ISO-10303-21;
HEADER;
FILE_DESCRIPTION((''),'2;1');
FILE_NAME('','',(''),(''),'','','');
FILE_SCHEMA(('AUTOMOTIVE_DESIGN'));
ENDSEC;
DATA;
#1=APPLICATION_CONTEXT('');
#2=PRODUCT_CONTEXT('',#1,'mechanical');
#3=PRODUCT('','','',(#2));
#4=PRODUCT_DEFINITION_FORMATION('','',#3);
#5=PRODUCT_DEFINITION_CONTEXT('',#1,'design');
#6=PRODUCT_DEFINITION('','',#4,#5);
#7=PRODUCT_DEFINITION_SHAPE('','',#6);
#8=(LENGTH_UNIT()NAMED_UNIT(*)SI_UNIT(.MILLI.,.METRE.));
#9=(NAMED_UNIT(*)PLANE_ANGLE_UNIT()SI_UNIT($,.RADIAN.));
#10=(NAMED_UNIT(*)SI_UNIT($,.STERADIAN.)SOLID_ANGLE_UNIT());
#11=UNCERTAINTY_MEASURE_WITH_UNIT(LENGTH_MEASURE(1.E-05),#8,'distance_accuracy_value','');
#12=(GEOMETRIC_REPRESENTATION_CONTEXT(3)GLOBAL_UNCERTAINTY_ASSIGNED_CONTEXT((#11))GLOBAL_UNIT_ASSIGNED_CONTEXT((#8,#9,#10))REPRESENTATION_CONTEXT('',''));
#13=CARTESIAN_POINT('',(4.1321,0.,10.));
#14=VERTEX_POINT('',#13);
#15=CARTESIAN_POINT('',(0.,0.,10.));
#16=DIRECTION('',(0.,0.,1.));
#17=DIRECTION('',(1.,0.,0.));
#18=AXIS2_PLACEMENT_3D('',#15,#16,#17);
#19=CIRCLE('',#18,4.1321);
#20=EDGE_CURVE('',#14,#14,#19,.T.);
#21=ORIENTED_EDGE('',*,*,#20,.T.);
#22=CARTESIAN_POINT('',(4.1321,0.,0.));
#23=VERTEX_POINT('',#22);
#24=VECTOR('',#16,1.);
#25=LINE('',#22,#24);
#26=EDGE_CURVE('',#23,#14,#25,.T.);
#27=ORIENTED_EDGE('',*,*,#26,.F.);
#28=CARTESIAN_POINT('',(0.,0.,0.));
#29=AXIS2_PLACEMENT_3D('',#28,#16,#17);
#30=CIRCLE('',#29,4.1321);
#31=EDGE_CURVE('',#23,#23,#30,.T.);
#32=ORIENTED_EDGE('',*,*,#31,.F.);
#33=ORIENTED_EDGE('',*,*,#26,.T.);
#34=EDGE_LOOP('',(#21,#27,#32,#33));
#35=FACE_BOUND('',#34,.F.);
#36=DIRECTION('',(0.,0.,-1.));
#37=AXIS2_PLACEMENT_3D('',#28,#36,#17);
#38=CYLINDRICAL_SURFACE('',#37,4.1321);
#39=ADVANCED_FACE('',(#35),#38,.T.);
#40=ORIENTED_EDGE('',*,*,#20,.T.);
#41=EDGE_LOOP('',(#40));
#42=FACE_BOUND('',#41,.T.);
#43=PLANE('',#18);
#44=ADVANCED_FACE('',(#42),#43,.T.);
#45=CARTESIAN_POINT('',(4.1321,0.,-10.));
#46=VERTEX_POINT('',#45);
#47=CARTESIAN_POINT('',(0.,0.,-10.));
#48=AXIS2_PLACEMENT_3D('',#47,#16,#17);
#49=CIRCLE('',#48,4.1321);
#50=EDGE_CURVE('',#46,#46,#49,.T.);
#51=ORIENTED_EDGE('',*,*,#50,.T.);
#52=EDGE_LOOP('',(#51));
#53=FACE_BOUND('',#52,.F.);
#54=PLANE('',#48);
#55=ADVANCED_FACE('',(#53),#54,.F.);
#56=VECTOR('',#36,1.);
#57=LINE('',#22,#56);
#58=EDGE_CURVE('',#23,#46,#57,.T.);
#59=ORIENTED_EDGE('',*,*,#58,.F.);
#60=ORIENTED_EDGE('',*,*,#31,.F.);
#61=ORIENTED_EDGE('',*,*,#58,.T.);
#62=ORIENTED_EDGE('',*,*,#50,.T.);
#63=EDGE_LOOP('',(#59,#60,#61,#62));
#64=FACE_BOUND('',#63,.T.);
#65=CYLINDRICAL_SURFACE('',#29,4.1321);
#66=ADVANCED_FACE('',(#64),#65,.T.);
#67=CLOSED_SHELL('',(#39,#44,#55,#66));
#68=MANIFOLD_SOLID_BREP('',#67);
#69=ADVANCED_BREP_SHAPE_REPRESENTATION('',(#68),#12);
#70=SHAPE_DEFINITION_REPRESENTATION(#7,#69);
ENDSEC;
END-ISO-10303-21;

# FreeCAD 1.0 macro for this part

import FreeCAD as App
import Part
import Sketcher

doc = App.newDocument("Part")
body = doc.addObject("PartDesign::Body", "Body")

sketch1 = doc.addObject("Sketcher::SketchObject", "Sketch")
body.addObject(sketch1)
sketch1.AttachmentSupport = (doc.XY_Plane, [""])
sketch1.MapMode = "FlatFace"
sketch1.addGeometry(Part.Circle(App.Vector(0, 0, 0), App.Vector(0, 0, 1), 4.1), False)
sketch1.addConstraint(Sketcher.Constraint("Coincident", 0, 3, -1, 1))
sketch1.addConstraint(Sketcher.Constraint("Diameter", 0, 8.2642))
pad1 = doc.addObject("PartDesign::Pad", "Pad")
body.addObject(pad1)
pad1.Profile = sketch1
pad1.Length = 20
pad1.Midplane = True

doc.recompute()
